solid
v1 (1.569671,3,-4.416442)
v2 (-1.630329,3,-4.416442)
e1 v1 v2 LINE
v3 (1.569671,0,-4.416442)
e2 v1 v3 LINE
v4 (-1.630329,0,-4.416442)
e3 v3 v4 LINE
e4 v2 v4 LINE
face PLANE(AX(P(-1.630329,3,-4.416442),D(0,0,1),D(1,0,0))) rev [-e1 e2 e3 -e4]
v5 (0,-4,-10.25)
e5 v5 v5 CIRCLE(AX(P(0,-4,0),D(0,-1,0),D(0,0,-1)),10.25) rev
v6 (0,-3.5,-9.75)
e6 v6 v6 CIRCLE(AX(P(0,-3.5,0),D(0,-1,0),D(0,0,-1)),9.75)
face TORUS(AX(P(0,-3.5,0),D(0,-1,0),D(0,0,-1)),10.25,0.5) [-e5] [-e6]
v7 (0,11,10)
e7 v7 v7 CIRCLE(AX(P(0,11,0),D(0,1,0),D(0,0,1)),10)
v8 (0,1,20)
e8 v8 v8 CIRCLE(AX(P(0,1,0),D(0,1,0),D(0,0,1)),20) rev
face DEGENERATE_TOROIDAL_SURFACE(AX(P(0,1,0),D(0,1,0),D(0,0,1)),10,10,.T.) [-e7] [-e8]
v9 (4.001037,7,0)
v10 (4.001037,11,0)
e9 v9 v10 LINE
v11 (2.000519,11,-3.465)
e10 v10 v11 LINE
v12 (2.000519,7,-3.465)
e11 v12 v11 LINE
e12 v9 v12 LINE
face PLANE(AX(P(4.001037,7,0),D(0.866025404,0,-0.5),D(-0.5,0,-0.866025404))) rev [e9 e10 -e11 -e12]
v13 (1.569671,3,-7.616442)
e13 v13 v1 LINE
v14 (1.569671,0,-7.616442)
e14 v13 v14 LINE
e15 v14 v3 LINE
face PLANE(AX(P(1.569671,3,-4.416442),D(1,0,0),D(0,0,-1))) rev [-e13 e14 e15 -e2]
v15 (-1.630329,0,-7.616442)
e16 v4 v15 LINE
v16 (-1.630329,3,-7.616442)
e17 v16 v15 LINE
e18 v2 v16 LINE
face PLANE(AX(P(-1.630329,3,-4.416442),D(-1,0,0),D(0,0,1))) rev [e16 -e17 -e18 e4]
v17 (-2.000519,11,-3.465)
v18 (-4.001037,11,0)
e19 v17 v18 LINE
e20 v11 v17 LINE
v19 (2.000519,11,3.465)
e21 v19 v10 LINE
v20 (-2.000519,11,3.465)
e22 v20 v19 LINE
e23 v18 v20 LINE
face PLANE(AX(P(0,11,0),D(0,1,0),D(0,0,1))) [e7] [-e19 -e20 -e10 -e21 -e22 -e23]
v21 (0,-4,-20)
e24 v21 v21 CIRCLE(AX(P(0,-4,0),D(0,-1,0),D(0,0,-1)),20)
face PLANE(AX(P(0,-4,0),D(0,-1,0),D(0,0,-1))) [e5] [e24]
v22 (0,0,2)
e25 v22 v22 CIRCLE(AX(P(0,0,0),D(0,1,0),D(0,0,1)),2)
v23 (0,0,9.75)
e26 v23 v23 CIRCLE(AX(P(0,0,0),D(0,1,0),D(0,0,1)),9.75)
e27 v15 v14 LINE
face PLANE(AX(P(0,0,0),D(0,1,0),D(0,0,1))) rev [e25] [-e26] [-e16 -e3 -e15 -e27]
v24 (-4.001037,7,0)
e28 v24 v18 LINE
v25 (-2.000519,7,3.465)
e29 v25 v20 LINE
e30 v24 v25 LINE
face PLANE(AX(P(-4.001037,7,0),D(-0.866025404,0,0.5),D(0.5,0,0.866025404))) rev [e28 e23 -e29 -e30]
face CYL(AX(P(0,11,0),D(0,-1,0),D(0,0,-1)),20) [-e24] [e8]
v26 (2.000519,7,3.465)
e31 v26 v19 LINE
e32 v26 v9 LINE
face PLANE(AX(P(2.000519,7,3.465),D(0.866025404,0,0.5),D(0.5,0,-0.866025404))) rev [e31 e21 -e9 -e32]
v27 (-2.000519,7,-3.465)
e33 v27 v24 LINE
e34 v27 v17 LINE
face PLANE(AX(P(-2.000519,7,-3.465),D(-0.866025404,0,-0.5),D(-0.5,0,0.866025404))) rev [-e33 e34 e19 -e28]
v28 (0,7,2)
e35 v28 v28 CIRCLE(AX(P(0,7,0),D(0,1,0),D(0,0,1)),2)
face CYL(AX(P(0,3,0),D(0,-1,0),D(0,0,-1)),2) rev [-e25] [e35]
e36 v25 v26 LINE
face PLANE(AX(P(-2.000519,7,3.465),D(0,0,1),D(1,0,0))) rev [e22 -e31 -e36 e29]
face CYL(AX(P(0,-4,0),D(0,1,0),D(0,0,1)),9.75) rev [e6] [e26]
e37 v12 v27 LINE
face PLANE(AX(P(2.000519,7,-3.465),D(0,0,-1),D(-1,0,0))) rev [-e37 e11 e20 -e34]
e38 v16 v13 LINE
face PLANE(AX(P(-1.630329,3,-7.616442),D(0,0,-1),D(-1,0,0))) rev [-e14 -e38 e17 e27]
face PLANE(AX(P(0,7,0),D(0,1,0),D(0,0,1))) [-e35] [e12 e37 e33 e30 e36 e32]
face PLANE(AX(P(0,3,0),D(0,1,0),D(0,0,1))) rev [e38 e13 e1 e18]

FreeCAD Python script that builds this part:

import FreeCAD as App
import Part
import Sketcher

V = App.Vector
Q = App.Units.Quantity


def edges_at(feature, points):
    """Names of the edges that pass closest to the given points."""
    edges = feature.Shape.Edges
    near = lambda p: min(range(len(edges)), key=lambda i: edges[i].distToShape(Part.Vertex(*p))[0])
    return sorted({f"Edge{near(p) + 1}" for p in points})


def add_polygon(sketch, points):
    """Adds a closed chain of lines whose ends are joined by coincident constraints."""
    first, n = sketch.GeometryCount, len(points)
    for a, b in zip(points, points[1:] + points[:1]):
        sketch.addGeometry(Part.LineSegment(App.Vector(*a, 0), App.Vector(*b, 0)), False)
    for i in range(n):
        sketch.addConstraint(Sketcher.Constraint("Coincident", first + i, 2, first + (i + 1) % n, 1))

doc = App.newDocument("Part")
body = doc.addObject("PartDesign::Body", "Body")

# Sketch on XZ plane
sketch1 = body.newObject("Sketcher::SketchObject", "Sketch")
sketch1.AttachmentSupport = (doc.getObject("XZ_Plane"), [""])
sketch1.MapMode = "FlatFace"
sketch1.addGeometry([
    Part.Circle(V(0, 0, 0), V(0, 0, 1), 9.75),
    Part.Circle(V(0, 0, 0), V(0, 0, 1), 2),
], False)
sketch1.addConstraint([
    Sketcher.Constraint("Coincident", 0, 3, -1, 1),
    Sketcher.Constraint("Coincident", 1, 3, -1, 1),
    Sketcher.Constraint("Diameter", 1, Q("4 mm")),
    Sketcher.Constraint("Diameter", 0, Q("19.5 mm")),
])
pad1 = body.newObject("PartDesign::Pad", "Pad")
pad1.Profile = sketch1
pad1.Length = 3
pad1.Reversed = True

# Sketch on XZ plane
sketch2 = body.newObject("Sketcher::SketchObject", "Sketch001")
sketch2.AttachmentSupport = (doc.getObject("XZ_Plane"), [""])
sketch2.MapMode = "FlatFace"
add_polygon(sketch2, [(-1.630329, -4.416442), (-1.630329, -7.616442), (1.569671, -7.616442), (1.569671, -4.416442)])  # lines 0-3
sketch2.addConstraint([
    Sketcher.Constraint("Vertical", 0),
    Sketcher.Constraint("Horizontal", 1),
    Sketcher.Constraint("Vertical", 2),
    Sketcher.Constraint("Horizontal", 3),
    Sketcher.Constraint("Equal", 3, 0),
    Sketcher.Constraint("DistanceX", 1, 1, 1, 2, Q("3.2 mm")),
    Sketcher.Constraint("DistanceX", 0, 2, -1, 1, Q("1.630329 mm")),
    Sketcher.Constraint("DistanceY", 0, 2, -1, 1, Q("7.616442 mm")),
])
pocket1 = body.newObject("PartDesign::Pocket", "Pocket")
pocket1.Profile = sketch2
pocket1.Length = 3

# Sketch on XZ plane
sketch3 = body.newObject("Sketcher::SketchObject", "Sketch002")
sketch3.AttachmentSupport = (doc.getObject("XZ_Plane"), [""])
sketch3.MapMode = "FlatFace"
sketch3.AttachmentOffset = App.Placement(V(0, 0, -3), App.Rotation())
sketch3.addGeometry(Part.Circle(V(0, 0, 0), V(0, 0, 1), 20), False)
sketch3.addConstraint([
    Sketcher.Constraint("Coincident", 0, 3, -1, 1),
    Sketcher.Constraint("Diameter", 0, Q("40 mm")),
])
pad2 = body.newObject("PartDesign::Pad", "Pad001")
pad2.Profile = sketch3
pad2.Length = 8
pad2.Reversed = True

# Sketch on XZ plane
sketch4 = body.newObject("Sketcher::SketchObject", "Sketch003")
sketch4.AttachmentSupport = (doc.getObject("XZ_Plane"), [""])
sketch4.MapMode = "FlatFace"
sketch4.AttachmentOffset = App.Placement(V(0, 0, -3), App.Rotation())
sketch4.addGeometry([
    Part.Circle(V(0, 0, 0), V(0, 0, 1), 20),
    Part.Circle(V(0, 0, 0), V(0, 0, 1), 9.75),
], False)
sketch4.addConstraint([
    Sketcher.Constraint("Coincident", 0, 3, -1, 1),
    Sketcher.Constraint("Coincident", 1, 3, -1, 1),
    Sketcher.Constraint("Diameter", 0, Q("40 mm")),
    Sketcher.Constraint("Diameter", 1, Q("19.5 mm")),
])
pad3 = body.newObject("PartDesign::Pad", "Pad002")
pad3.Profile = sketch4
pad3.Length = 7
doc.recompute()

fillet = body.newObject("PartDesign::Fillet", "Fillet")
fillet.Base = (pad3, edges_at(pad3, [(-20, 11, 0)]))
fillet.Radius = 10

# Sketch on XZ plane
sketch5 = body.newObject("Sketcher::SketchObject", "Sketch004")
sketch5.AttachmentSupport = (doc.getObject("XZ_Plane"), [""])
sketch5.MapMode = "FlatFace"
sketch5.AttachmentOffset = App.Placement(V(0, 0, -3), App.Rotation())
sketch5.addGeometry(Part.Circle(V(0, 0, 0), V(0, 0, 1), 2), False)
sketch5.addConstraint([
    Sketcher.Constraint("Coincident", 0, 3, -1, 1),
    Sketcher.Constraint("Diameter", 0, Q("4 mm")),
])
pocket2 = body.newObject("PartDesign::Pocket", "Pocket001")
pocket2.Profile = sketch5
pocket2.Type = "ThroughAll"

# Sketch on XZ plane
sketch6 = body.newObject("Sketcher::SketchObject", "Sketch005")
sketch6.AttachmentSupport = (doc.getObject("XZ_Plane"), [""])
sketch6.MapMode = "FlatFace"
sketch6.AttachmentOffset = App.Placement(V(0, 0, -11), App.Rotation())
add_polygon(sketch6, [(4.001037, 0), (2.000519, -3.465), (-2.000519, -3.465), (-4.001037, 0), (-2.000519, 3.465), (2.000519, 3.465)])  # lines 0-5
sketch6.addConstraint([
    Sketcher.Constraint("Horizontal", 1),
    Sketcher.Constraint("Horizontal", 4),
    Sketcher.Constraint("Symmetric", 0, 2, 3, 2, -1, 1),
    Sketcher.Constraint("Symmetric", 2, 2, 5, 2, -1, 1),
    Sketcher.Constraint("PointOnObject", 2, 2, -1),
    Sketcher.Constraint("Parallel", 2, 5),
    Sketcher.Constraint("Vertical", 1, 2, 3, 2),
    Sketcher.Constraint("Angle", 0, Q("-120 deg")),
    Sketcher.Constraint("DistanceY", 1, 2, 3, 2, Q("6.93 mm")),
    Sketcher.Constraint("DistanceX", 1, 2, 1, 1, Q("4.001037 mm")),
])
pocket3 = body.newObject("PartDesign::Pocket", "Pocket002")
pocket3.Profile = sketch6
pocket3.Length = 4
pocket3.Reversed = True
doc.recompute()

fillet2 = body.newObject("PartDesign::Fillet", "Fillet001")
fillet2.Base = (pocket3, edges_at(pocket3, [(-9.75, -4, 0)]))
fillet2.Radius = 0.5

doc.recompute()
